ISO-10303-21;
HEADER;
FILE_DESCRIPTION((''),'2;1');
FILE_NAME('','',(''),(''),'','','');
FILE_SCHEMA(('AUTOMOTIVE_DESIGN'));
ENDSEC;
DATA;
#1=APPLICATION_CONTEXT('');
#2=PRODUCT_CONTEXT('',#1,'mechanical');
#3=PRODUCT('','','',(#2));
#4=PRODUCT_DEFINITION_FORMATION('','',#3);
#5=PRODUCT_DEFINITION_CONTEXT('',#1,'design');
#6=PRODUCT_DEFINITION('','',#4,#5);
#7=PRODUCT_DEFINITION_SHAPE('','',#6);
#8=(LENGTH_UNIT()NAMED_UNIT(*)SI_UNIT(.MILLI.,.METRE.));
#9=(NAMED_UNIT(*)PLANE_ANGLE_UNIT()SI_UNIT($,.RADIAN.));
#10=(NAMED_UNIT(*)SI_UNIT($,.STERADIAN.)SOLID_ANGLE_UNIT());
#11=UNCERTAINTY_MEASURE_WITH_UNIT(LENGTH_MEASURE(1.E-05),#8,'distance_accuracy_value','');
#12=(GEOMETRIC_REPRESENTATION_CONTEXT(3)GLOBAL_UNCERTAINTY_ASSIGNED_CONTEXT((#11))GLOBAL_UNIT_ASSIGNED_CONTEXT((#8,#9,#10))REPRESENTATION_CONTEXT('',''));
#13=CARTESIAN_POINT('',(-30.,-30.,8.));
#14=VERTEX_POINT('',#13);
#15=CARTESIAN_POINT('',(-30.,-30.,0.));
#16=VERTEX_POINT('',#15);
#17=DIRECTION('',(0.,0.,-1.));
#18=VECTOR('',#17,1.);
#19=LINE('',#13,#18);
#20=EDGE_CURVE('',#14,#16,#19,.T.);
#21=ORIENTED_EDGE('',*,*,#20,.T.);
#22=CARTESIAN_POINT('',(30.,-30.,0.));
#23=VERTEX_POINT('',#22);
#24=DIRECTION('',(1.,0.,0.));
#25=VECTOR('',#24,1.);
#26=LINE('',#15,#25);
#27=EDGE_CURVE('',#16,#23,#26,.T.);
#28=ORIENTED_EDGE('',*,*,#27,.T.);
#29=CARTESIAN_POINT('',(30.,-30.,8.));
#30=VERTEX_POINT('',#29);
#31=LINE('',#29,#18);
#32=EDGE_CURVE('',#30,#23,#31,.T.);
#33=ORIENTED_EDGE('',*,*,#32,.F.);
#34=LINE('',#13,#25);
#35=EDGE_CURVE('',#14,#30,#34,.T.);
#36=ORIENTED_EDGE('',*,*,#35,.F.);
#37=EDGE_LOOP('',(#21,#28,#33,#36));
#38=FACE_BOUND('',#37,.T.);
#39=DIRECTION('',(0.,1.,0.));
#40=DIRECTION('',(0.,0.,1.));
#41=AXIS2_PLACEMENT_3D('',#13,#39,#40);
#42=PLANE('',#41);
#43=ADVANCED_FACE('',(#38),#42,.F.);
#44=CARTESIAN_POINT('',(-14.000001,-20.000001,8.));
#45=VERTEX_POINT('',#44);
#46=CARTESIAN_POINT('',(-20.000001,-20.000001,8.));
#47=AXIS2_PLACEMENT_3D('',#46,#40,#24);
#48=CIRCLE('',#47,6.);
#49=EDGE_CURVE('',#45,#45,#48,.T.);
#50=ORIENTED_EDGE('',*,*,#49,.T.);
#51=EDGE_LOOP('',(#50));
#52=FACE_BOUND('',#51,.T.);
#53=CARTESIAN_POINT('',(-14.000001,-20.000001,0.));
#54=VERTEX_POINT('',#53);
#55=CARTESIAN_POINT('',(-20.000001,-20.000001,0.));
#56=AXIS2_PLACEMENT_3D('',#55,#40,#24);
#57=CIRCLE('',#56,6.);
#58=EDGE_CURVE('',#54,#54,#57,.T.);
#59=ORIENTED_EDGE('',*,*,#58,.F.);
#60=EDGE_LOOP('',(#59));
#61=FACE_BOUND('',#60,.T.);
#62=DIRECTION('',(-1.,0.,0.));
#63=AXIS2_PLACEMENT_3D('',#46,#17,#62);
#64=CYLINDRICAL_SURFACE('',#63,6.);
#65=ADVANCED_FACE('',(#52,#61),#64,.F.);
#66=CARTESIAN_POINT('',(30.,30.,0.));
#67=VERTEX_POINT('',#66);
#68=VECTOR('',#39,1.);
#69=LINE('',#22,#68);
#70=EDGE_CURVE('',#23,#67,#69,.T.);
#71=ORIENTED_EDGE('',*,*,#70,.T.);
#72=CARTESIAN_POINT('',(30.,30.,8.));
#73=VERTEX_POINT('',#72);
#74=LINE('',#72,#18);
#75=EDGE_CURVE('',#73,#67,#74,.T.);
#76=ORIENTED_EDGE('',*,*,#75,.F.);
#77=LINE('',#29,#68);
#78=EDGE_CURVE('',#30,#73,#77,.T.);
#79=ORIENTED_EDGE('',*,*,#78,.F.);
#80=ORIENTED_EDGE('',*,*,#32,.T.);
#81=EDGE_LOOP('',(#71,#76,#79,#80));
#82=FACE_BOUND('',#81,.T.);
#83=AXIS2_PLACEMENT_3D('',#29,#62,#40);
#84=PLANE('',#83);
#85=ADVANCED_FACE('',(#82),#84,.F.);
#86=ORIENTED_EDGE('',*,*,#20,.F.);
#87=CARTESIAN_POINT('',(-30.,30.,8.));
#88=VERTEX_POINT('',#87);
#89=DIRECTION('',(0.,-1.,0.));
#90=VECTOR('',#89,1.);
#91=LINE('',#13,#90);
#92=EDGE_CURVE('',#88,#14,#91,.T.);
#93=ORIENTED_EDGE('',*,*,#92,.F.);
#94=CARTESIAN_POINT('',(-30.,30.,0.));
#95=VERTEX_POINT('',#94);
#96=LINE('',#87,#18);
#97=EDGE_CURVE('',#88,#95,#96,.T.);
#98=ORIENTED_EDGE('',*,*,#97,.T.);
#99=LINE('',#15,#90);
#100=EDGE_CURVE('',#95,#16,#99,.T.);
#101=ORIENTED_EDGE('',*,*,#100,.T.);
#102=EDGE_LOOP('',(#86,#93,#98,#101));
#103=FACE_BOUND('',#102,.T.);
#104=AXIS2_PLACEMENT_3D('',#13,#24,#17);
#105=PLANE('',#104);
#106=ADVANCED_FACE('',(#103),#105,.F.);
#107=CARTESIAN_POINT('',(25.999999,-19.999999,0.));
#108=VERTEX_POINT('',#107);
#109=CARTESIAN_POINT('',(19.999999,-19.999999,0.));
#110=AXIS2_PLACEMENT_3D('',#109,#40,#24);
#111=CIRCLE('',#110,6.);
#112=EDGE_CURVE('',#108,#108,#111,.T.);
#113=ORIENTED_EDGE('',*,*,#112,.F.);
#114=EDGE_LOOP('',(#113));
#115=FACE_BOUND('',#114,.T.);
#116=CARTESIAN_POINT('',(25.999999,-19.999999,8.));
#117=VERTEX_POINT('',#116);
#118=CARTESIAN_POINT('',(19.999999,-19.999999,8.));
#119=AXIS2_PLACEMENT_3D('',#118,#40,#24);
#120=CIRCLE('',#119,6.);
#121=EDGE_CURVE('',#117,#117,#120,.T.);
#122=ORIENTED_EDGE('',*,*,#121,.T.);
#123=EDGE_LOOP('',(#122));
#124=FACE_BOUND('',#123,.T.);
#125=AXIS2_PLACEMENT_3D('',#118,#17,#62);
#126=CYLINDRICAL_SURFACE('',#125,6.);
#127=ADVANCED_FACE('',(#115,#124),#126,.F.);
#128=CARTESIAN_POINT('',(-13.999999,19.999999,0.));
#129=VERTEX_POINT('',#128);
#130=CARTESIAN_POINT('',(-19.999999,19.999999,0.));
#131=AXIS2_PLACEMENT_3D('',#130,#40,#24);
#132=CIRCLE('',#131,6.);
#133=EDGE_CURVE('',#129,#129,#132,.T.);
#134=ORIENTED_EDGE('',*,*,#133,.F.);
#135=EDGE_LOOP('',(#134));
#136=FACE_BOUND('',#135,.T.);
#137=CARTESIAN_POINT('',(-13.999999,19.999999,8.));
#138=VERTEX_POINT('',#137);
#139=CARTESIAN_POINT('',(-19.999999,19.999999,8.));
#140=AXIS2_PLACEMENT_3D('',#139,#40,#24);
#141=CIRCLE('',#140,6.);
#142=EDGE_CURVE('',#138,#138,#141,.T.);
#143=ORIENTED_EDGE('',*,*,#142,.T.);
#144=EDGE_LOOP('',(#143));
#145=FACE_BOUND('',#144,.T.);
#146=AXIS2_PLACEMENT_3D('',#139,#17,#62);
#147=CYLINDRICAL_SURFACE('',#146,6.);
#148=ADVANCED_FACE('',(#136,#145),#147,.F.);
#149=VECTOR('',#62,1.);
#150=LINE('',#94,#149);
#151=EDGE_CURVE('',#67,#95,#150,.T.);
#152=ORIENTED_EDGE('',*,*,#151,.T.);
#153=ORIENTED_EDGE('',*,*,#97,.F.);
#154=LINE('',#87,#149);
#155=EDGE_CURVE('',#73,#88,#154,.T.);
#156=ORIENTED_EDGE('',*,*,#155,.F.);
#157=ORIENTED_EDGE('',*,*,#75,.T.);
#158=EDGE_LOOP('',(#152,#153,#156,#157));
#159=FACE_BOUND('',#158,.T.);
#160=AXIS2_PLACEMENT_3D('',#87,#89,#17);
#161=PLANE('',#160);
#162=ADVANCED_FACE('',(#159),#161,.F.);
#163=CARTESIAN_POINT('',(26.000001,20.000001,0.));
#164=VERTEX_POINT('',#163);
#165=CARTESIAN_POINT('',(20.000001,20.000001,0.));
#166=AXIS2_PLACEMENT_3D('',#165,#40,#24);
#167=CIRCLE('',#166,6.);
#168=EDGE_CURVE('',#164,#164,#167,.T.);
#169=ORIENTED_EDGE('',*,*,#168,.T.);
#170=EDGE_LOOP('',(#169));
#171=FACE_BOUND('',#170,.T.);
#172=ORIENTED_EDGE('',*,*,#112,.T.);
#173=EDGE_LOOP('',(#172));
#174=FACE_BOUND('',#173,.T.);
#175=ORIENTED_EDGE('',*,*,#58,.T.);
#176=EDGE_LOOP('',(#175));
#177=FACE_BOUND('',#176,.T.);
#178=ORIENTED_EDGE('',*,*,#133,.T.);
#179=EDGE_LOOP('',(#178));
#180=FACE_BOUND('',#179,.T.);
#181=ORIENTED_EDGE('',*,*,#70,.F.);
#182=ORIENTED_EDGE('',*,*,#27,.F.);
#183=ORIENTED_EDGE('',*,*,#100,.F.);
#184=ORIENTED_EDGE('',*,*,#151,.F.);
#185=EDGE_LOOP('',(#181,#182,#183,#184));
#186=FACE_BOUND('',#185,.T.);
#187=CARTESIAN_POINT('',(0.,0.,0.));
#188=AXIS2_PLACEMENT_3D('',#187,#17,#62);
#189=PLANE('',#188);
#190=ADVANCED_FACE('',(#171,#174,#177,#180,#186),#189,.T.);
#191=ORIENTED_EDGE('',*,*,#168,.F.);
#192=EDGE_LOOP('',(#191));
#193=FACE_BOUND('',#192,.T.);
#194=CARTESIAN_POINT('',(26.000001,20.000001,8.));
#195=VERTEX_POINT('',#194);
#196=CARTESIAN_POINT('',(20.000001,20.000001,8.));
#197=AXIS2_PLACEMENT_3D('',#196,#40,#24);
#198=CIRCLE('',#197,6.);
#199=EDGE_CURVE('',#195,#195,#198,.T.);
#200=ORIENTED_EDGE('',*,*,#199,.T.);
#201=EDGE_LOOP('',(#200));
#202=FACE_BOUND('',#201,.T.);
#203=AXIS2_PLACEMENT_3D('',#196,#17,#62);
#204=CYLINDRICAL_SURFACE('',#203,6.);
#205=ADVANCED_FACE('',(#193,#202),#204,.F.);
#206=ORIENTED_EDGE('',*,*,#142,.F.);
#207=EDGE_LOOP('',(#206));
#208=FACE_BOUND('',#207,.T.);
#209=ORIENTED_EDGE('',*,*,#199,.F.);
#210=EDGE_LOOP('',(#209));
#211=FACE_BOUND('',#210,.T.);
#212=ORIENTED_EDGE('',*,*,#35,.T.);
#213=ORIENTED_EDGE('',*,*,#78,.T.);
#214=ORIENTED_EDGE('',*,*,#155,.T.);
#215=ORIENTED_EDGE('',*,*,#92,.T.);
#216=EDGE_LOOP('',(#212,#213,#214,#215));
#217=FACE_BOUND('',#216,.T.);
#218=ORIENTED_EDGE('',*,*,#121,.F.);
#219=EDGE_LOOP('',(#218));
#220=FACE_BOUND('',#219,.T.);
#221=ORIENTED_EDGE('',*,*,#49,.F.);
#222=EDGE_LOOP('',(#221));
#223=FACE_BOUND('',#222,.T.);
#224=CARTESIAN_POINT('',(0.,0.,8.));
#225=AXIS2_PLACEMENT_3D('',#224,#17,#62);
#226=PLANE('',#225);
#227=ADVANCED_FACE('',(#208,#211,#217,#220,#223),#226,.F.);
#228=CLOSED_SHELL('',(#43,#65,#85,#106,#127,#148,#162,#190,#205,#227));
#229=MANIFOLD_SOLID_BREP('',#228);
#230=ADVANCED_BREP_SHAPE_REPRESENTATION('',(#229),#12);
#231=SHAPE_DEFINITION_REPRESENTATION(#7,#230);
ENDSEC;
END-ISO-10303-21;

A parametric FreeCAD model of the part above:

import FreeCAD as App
import Part
import Sketcher


def add_polygon(sketch, points):
    """Adds a closed chain of lines whose ends are joined by coincident constraints."""
    first, n = sketch.GeometryCount, len(points)
    for a, b in zip(points, points[1:] + points[:1]):
        sketch.addGeometry(Part.LineSegment(App.Vector(*a, 0), App.Vector(*b, 0)), False)
    for i in range(n):
        sketch.addConstraint(Sketcher.Constraint("Coincident", first + i, 2, first + (i + 1) % n, 1))

doc = App.newDocument("Part")
params = doc.addObject("Spreadsheet::Sheet", "Params")
for row, (alias, value) in enumerate([
    ("sketch1_diameter", "12 mm"),
    ("sketch1_width", "60 mm"),
    ("pad1_length", "8 mm"),
], start=1):
    params.set(f"A{row}", alias)
    params.set(f"B{row}", "=" + value)
    params.setAlias(f"B{row}", alias)

body = doc.addObject("PartDesign::Body", "Body")

sketch1 = body.newObject("Sketcher::SketchObject", "Sketch")
sketch1.AttachmentSupport = (doc.getObject("XY_Plane"), [""])
sketch1.MapMode = "FlatFace"
add_polygon(sketch1, [(-30, 30), (-30, -30), (30, -30), (30, 30)])
sketch1.addGeometry(Part.Circle(App.Vector(-20, -20, 0), App.Vector(0, 0, 1), 6), False)
sketch1.addGeometry(Part.Circle(App.Vector(20, -20, 0), App.Vector(0, 0, 1), 6), False)
sketch1.addGeometry(Part.Circle(App.Vector(-20, 20, 0), App.Vector(0, 0, 1), 6), False)
sketch1.addGeometry(Part.Circle(App.Vector(20, 20, 0), App.Vector(0, 0, 1), 6), False)
sketch1.addConstraint([
    Sketcher.Constraint("Vertical", 0),
    Sketcher.Constraint("Horizontal", 1),
    Sketcher.Constraint("Vertical", 2),
    Sketcher.Constraint("Horizontal", 3),
    Sketcher.Constraint("Equal", 4, 5),
    Sketcher.Constraint("Equal", 5, 6),
    Sketcher.Constraint("Equal", 6, 7),
    Sketcher.Constraint("Symmetric", 5, 3, 6, 3, -1, 1),
    Sketcher.Constraint("Symmetric", 4, 3, 7, 3, -1, 1),
    Sketcher.Constraint("Symmetric", 0, 2, 2, 2, -1, 1),
    Sketcher.Constraint("Symmetric", 4, 3, 5, 3, -2),
    Sketcher.Constraint("Equal", 3, 0),
    Sketcher.Constraint("Diameter", 4, 12.0),
    Sketcher.Constraint("DistanceX", 1, 1, 1, 2, 60.0),
    Sketcher.Constraint("DistanceX", 4, 3, -1, 1, 20.000001),
    Sketcher.Constraint("DistanceY", 4, 3, -1, 1, 20.000001),
])
sketch1.setExpression("Constraints[16]", "Params.sketch1_diameter")
sketch1.setExpression("Constraints[17]", "Params.sketch1_width")
pad1 = body.newObject("PartDesign::Pad", "Pad")
pad1.Profile = sketch1
pad1.setExpression("Length", "Params.pad1_length")

doc.recompute()
